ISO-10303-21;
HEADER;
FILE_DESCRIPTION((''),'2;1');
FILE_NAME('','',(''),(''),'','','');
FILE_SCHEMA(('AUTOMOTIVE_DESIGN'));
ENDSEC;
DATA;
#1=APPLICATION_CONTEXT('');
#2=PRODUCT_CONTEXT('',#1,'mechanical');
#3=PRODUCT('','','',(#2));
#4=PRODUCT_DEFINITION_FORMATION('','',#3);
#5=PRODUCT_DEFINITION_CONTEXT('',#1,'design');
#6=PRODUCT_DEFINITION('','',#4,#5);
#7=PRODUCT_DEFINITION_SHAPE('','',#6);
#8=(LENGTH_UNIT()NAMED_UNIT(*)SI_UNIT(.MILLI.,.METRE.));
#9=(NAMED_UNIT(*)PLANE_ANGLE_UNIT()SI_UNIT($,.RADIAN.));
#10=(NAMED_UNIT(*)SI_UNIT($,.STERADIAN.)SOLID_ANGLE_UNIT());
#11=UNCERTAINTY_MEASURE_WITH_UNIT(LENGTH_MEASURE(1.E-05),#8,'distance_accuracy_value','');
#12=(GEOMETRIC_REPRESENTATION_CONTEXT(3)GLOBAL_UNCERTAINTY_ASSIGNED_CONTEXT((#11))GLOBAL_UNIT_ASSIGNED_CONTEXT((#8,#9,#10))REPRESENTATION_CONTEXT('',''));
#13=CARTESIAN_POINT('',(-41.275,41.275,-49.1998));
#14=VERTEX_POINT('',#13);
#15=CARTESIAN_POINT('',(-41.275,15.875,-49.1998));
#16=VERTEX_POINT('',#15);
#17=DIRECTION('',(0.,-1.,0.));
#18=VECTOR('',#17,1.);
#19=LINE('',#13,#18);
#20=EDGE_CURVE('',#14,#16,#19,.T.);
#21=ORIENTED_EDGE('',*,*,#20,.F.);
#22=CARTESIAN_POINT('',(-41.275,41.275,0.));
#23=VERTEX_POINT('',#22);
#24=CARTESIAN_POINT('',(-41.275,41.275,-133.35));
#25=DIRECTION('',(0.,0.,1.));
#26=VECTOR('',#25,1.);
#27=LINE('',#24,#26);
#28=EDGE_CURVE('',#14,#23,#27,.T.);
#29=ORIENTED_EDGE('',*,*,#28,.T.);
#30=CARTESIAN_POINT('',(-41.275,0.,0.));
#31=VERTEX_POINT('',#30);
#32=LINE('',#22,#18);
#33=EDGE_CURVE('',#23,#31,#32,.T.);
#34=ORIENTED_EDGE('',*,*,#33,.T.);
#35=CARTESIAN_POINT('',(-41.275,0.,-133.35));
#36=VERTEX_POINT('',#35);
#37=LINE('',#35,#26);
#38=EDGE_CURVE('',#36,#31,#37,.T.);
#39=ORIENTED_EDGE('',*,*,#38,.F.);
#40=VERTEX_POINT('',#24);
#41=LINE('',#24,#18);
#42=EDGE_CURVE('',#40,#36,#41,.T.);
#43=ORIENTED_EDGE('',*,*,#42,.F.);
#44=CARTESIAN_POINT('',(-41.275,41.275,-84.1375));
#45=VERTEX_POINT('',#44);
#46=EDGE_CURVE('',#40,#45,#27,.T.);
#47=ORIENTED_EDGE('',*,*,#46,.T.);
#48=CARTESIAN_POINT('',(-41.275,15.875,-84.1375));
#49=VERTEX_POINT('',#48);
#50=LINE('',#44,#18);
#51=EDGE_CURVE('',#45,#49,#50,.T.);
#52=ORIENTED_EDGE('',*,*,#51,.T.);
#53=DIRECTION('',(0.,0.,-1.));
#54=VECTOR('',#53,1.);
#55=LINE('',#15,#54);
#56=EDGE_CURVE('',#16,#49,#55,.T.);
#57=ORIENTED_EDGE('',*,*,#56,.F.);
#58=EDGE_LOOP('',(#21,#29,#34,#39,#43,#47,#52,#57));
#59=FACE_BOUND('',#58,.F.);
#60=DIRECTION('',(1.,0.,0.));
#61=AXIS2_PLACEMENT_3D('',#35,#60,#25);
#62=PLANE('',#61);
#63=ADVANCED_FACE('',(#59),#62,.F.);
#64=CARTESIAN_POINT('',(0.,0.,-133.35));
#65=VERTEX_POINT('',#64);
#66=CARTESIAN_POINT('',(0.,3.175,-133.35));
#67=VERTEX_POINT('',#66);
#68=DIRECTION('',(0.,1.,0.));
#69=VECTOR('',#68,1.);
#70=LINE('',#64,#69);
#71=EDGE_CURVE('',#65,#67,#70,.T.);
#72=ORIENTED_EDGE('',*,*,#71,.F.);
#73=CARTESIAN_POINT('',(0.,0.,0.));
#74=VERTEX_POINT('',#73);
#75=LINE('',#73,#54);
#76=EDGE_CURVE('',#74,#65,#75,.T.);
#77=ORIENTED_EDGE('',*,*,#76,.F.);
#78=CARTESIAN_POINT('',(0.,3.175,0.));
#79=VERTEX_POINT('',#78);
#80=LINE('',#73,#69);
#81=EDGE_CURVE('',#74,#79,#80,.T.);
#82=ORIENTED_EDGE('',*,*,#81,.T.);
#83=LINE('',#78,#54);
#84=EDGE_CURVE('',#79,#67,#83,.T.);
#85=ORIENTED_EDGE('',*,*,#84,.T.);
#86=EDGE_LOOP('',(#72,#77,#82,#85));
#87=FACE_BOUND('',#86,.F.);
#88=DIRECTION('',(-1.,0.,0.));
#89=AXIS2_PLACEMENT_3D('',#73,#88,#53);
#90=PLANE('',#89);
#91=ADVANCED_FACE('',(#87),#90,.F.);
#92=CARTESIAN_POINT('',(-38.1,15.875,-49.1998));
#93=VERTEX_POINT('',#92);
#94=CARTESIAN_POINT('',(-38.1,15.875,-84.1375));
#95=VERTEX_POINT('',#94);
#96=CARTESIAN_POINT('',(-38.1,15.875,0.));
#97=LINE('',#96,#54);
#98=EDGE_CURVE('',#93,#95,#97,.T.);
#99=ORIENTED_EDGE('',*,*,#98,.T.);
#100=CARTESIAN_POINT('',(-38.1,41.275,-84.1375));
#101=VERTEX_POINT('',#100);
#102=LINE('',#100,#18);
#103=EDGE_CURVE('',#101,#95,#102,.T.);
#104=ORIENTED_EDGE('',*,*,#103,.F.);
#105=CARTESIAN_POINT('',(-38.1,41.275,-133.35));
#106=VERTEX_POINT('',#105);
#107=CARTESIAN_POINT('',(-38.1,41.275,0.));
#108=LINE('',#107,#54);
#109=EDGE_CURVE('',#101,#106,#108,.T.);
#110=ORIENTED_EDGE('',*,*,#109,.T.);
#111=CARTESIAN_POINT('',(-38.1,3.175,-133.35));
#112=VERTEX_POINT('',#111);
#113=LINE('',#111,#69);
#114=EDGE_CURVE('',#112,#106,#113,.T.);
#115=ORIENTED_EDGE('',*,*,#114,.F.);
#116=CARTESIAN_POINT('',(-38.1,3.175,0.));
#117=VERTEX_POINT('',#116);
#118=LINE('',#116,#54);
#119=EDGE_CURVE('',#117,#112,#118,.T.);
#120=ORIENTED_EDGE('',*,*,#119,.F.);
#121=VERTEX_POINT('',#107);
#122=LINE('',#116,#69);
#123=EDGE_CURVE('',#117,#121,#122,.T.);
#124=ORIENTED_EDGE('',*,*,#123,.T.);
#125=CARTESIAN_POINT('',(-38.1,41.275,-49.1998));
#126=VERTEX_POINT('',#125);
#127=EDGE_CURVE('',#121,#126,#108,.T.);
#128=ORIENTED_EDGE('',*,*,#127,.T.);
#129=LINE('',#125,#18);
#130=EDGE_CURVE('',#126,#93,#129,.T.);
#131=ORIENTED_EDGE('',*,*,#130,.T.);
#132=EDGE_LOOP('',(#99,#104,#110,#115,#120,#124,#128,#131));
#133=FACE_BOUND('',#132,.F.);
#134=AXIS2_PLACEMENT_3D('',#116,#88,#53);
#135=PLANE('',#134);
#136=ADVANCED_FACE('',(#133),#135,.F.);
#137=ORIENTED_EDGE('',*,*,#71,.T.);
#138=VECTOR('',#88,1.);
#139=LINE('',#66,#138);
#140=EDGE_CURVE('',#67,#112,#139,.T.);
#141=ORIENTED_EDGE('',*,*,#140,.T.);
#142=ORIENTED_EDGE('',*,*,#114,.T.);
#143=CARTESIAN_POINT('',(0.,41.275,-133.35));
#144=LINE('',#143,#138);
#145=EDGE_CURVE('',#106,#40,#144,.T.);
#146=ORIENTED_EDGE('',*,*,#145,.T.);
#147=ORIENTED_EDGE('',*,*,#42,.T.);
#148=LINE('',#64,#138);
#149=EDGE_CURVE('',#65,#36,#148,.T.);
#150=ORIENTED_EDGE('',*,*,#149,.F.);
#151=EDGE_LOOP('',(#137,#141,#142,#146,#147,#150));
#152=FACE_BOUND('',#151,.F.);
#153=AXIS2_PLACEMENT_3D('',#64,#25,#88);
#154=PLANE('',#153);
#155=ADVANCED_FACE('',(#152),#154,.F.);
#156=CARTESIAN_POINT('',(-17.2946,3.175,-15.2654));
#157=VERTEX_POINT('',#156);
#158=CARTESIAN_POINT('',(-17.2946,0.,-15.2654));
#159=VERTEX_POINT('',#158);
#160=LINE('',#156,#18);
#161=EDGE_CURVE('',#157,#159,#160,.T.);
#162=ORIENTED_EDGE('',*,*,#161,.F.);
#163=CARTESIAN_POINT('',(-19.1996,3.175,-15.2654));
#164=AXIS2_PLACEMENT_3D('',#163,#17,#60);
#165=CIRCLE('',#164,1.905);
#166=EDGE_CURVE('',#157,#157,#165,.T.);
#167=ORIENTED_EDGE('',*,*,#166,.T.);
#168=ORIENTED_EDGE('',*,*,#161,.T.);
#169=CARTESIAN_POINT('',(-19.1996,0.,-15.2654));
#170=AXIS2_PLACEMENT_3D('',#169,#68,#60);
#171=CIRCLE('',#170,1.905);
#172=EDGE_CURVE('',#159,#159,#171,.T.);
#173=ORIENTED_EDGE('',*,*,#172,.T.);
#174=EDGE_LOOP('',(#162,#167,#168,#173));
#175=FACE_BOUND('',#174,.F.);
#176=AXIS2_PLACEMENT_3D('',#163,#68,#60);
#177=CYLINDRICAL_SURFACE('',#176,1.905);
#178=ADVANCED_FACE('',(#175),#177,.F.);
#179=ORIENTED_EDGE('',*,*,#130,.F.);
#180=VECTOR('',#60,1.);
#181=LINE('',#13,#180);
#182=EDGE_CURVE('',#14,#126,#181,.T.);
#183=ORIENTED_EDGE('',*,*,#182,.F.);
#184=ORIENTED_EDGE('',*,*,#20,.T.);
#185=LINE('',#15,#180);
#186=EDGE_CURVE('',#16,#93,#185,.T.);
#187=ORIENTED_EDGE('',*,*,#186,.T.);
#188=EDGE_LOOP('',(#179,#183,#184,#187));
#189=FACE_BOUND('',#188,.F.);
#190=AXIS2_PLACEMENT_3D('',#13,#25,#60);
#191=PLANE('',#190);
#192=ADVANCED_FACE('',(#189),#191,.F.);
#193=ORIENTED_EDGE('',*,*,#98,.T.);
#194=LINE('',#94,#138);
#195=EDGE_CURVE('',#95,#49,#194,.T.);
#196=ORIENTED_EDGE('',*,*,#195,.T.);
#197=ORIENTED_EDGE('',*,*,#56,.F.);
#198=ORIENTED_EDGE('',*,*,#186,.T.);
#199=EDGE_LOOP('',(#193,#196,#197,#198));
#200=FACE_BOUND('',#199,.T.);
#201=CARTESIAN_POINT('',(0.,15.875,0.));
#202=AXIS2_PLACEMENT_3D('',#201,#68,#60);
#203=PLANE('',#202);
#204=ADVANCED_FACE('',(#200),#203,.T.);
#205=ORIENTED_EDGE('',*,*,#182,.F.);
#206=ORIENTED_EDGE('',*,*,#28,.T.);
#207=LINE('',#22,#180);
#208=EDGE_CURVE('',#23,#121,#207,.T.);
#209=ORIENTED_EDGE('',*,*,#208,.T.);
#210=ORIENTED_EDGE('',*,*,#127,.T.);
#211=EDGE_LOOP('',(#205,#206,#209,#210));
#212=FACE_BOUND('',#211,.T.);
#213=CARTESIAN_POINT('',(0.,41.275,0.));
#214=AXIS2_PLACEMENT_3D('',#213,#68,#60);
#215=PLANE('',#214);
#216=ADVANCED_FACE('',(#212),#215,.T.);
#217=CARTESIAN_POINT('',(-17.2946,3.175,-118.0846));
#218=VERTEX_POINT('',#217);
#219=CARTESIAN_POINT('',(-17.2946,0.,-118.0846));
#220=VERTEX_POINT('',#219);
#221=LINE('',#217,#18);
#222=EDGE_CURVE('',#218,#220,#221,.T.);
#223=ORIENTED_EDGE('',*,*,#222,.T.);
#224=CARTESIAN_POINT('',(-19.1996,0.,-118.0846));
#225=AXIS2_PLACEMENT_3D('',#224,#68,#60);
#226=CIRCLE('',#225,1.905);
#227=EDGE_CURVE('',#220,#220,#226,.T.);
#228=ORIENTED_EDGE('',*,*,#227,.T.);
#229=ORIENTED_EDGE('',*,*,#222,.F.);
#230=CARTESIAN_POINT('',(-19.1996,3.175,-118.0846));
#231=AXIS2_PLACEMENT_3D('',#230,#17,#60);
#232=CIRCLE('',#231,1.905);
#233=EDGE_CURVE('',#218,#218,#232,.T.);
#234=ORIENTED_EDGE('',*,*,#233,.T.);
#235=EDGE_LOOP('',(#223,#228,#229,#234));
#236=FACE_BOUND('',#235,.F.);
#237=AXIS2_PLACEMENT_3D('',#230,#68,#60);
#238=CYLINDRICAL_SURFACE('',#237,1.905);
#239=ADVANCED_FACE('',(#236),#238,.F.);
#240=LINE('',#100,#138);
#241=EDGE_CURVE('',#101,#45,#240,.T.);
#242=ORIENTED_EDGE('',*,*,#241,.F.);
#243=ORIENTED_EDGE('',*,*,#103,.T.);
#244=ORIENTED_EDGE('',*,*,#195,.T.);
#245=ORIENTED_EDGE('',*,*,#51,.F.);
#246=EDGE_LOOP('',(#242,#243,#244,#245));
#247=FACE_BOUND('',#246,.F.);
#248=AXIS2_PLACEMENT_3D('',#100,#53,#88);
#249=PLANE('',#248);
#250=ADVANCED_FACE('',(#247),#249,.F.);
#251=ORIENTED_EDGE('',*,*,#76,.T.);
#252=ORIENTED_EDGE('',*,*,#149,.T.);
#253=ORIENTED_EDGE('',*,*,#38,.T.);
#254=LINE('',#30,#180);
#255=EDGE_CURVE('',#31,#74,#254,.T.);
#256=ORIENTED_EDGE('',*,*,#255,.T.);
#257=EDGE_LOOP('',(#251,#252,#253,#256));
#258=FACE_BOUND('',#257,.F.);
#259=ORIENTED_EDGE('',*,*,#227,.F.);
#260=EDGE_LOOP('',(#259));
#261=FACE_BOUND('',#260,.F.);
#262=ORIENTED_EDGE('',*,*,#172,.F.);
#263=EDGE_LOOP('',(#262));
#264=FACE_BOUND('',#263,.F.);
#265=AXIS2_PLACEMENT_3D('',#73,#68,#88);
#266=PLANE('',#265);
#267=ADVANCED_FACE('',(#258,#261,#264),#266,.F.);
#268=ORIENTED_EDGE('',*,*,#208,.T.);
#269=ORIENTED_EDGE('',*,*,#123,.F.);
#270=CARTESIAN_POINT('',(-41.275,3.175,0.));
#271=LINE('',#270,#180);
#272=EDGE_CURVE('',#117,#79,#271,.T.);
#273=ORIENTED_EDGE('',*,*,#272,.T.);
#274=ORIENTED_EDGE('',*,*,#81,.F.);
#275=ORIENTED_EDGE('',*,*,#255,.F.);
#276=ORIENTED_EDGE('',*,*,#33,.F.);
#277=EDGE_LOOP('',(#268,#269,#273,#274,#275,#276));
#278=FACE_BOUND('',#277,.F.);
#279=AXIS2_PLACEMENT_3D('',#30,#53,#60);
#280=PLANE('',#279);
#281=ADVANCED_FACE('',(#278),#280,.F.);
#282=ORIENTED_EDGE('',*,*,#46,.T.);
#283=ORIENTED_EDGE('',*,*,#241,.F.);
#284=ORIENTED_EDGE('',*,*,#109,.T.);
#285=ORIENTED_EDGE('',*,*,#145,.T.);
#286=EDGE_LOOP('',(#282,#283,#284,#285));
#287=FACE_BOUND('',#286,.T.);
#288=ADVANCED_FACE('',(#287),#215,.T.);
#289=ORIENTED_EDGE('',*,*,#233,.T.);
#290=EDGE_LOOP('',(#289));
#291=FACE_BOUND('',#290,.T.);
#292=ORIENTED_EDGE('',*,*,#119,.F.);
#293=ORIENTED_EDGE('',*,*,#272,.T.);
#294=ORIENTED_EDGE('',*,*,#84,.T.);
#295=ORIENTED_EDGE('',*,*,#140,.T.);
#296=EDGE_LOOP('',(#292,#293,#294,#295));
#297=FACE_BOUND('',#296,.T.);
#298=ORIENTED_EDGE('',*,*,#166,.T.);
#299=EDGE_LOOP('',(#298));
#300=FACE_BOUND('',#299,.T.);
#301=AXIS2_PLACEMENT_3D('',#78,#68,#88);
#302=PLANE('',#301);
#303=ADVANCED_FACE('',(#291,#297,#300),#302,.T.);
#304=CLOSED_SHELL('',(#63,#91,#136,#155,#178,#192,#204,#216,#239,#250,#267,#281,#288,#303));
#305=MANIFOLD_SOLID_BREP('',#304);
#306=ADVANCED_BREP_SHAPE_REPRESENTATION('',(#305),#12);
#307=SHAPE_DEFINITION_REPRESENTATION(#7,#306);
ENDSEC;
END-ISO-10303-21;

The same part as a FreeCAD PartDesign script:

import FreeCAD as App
import Part
import Sketcher
from FreeCAD import Vector
Q = App.Units.Quantity

doc = App.newDocument("Part")
body = doc.addObject("PartDesign::Body", "Body")

# Sketch on XZ plane
sketch1 = doc.addObject("Sketcher::SketchObject", "Sketch")
body.addObject(sketch1)
sketch1.AttachmentSupport = (doc.XZ_Plane, [""])
sketch1.MapMode = "FlatFace"
sketch1.addGeometry(Part.LineSegment(Vector(-41, 0, 0), Vector(0, 0, 0)), False)
sketch1.addGeometry(Part.LineSegment(Vector(0, 0, 0), Vector(0, -133, 0)), False)
sketch1.addGeometry(Part.LineSegment(Vector(0, -133, 0), Vector(-41, -133, 0)), False)
sketch1.addGeometry(Part.LineSegment(Vector(-41, -133, 0), Vector(-41, 0, 0)), False)
sketch1.addConstraint(Sketcher.Constraint("Coincident", 0, 2, 1, 1))
sketch1.addConstraint(Sketcher.Constraint("Coincident", 1, 2, 2, 1))
sketch1.addConstraint(Sketcher.Constraint("Coincident", 2, 2, 3, 1))
sketch1.addConstraint(Sketcher.Constraint("Coincident", 3, 2, 0, 1))
sketch1.addConstraint(Sketcher.Constraint("Horizontal", 0))
sketch1.addConstraint(Sketcher.Constraint("Vertical", 1))
sketch1.addConstraint(Sketcher.Constraint("Horizontal", 2))
sketch1.addConstraint(Sketcher.Constraint("Vertical", 3))
sketch1.addConstraint(Sketcher.Constraint("Coincident", 0, 2, -1, 1))
sketch1.addConstraint(Sketcher.Constraint("DistanceY", 1, 2, 1, 1, Q("5.25 in")))
sketch1.addConstraint(Sketcher.Constraint("DistanceX", 0, 1, 0, 2, Q("1.625 in")))
pad1 = doc.addObject("PartDesign::Pad", "Pad")
body.addObject(pad1)
pad1.Profile = sketch1
pad1.Length = Q("0.125 in")
pad1.Reversed = True

# Sketch on XZ plane
sketch2 = doc.addObject("Sketcher::SketchObject", "Sketch001")
body.addObject(sketch2)
sketch2.AttachmentSupport = (doc.XZ_Plane, [""])
sketch2.MapMode = "FlatFace"
sketch2.AttachmentOffset = App.Placement(Vector(0, 0, -0.125 * 25.4), App.Rotation())
sketch2.addGeometry(Part.LineSegment(Vector(-38.1, -133.3, 0), Vector(-41.3, -133.3, 0)), False)
sketch2.addGeometry(Part.LineSegment(Vector(-41.3, -133.3, 0), Vector(-41.3, 0, 0)), False)
sketch2.addGeometry(Part.LineSegment(Vector(-41.3, 0, 0), Vector(-38.1, 0, 0)), False)
sketch2.addGeometry(Part.LineSegment(Vector(-38.1, 0, 0), Vector(-38.1, -133.3, 0)), False)
sketch2.addConstraint(Sketcher.Constraint("Coincident", 0, 2, 1, 1))
sketch2.addConstraint(Sketcher.Constraint("Coincident", 1, 2, 2, 1))
sketch2.addConstraint(Sketcher.Constraint("Coincident", 2, 2, 3, 1))
sketch2.addConstraint(Sketcher.Constraint("Coincident", 3, 2, 0, 1))
sketch2.addConstraint(Sketcher.Constraint("Horizontal", 0))
sketch2.addConstraint(Sketcher.Constraint("Vertical", 1))
sketch2.addConstraint(Sketcher.Constraint("Horizontal", 2))
sketch2.addConstraint(Sketcher.Constraint("Vertical", 3))
sketch2.addConstraint(Sketcher.Constraint("PointOnObject", 1, 2, -1))
sketch2.addConstraint(Sketcher.Constraint("DistanceX", 0, 2, 0, 1, Q("0.125 in")))
sketch2.addConstraint(Sketcher.Constraint("DistanceY", 1, 1, 1, 2, Q("5.25 in")))
sketch2.addConstraint(Sketcher.Constraint("DistanceX", 2, 2, -1, 1, Q("1.5 in")))
pad2 = doc.addObject("PartDesign::Pad", "Pad001")
body.addObject(pad2)
pad2.Profile = sketch2
pad2.Length = Q("1.5 in")
pad2.Reversed = True

# Sketch on XZ plane
sketch3 = doc.addObject("Sketcher::SketchObject", "Sketch002")
body.addObject(sketch3)
sketch3.AttachmentSupport = (doc.XZ_Plane, [""])
sketch3.MapMode = "FlatFace"
sketch3.AttachmentOffset = App.Placement(Vector(0, 0, -1.625 * 25.4), App.Rotation())
sketch3.addGeometry(Part.LineSegment(Vector(-38.1, -84.1, 0), Vector(-41.3, -84.1, 0)), False)
sketch3.addGeometry(Part.LineSegment(Vector(-41.3, -84.1, 0), Vector(-41.3, -49.2, 0)), False)
sketch3.addGeometry(Part.LineSegment(Vector(-41.3, -49.2, 0), Vector(-38.1, -49.2, 0)), False)
sketch3.addGeometry(Part.LineSegment(Vector(-38.1, -49.2, 0), Vector(-38.1, -84.1, 0)), False)
sketch3.addConstraint(Sketcher.Constraint("Coincident", 0, 2, 1, 1))
sketch3.addConstraint(Sketcher.Constraint("Coincident", 1, 2, 2, 1))
sketch3.addConstraint(Sketcher.Constraint("Coincident", 2, 2, 3, 1))
sketch3.addConstraint(Sketcher.Constraint("Coincident", 3, 2, 0, 1))
sketch3.addConstraint(Sketcher.Constraint("Horizontal", 0))
sketch3.addConstraint(Sketcher.Constraint("Vertical", 1))
sketch3.addConstraint(Sketcher.Constraint("Horizontal", 2))
sketch3.addConstraint(Sketcher.Constraint("Vertical", 3))
sketch3.addConstraint(Sketcher.Constraint("DistanceX", 2, 2, -1, 1, Q("1.5 in")))
sketch3.addConstraint(Sketcher.Constraint("DistanceX", 0, 2, 0, 1, Q("0.125 in")))
sketch3.addConstraint(Sketcher.Constraint("DistanceY", 1, 1, 1, 2, Q("1.3755 in")))
sketch3.addConstraint(Sketcher.Constraint("DistanceY", 0, 2, -1, 1, Q("3.3125 in")))
pocket1 = doc.addObject("PartDesign::Pocket", "Pocket")
body.addObject(pocket1)
pocket1.Profile = sketch3
pocket1.Length = Q("1 in")
pocket1.Reversed = True

# Sketch on XZ plane
sketch4 = doc.addObject("Sketcher::SketchObject", "Sketch003")
body.addObject(sketch4)
sketch4.AttachmentSupport = (doc.XZ_Plane, [""])
sketch4.MapMode = "FlatFace"
sketch4.AttachmentOffset = App.Placement(Vector(0, 0, -0.125 * 25.4), App.Rotation())
sketch4.addGeometry(Part.Circle(Vector(-19.2, -118.1, 0), Vector(0, 0, 1), 1.9), False)
sketch4.addGeometry(Part.Circle(Vector(-19.2, -15.3, 0), Vector(0, 0, 1), 1.9), False)
sketch4.addConstraint(Sketcher.Constraint("Equal", 0, 1))
sketch4.addConstraint(Sketcher.Constraint("Vertical", 0, 3, 1, 3))
sketch4.addConstraint(Sketcher.Constraint("Diameter", 0, Q("0.15 in")))
sketch4.addConstraint(Sketcher.Constraint("DistanceY", 0, 3, -1, 1, Q("4.649 in")))
sketch4.addConstraint(Sketcher.Constraint("DistanceY", 1, 3, -1, 1, Q("0.601 in")))
sketch4.addConstraint(Sketcher.Constraint("DistanceX", 0, 3, -1, 1, Q("0.7559 in")))
pocket2 = doc.addObject("PartDesign::Pocket", "Pocket001")
body.addObject(pocket2)
pocket2.Profile = sketch4
pocket2.Length = Q("0.8125 in")
pocket2.Reversed = True

doc.recompute()
